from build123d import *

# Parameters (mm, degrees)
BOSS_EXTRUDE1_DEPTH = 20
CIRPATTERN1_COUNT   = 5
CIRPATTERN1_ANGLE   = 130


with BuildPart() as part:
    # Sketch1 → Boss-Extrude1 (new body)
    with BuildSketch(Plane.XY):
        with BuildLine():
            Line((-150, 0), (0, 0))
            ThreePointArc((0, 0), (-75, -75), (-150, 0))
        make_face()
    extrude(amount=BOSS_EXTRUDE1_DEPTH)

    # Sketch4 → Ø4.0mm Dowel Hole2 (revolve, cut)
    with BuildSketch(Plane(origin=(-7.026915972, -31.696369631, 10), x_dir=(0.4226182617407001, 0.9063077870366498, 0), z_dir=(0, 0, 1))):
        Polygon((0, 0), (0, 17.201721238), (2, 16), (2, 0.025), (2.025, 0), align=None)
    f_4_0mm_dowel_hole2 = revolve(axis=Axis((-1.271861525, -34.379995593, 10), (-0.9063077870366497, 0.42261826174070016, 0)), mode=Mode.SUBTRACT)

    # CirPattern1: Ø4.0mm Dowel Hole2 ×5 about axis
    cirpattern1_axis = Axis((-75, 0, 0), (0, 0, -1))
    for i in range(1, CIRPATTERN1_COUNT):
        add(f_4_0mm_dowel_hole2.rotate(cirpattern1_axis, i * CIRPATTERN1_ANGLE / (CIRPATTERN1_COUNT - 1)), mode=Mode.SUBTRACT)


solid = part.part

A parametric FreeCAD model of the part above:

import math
import FreeCAD as App
import Part
import Sketcher
from FreeCAD import Vector
Q = App.Units.Quantity


def add_polygon(sketch, points):
    """Adds a closed chain of lines whose ends are joined by coincident constraints."""
    first, n = sketch.GeometryCount, len(points)
    for a, b in zip(points, points[1:] + points[:1]):
        sketch.addGeometry(Part.LineSegment(App.Vector(*a, 0), App.Vector(*b, 0)), False)
    for i in range(n):
        sketch.addConstraint(Sketcher.Constraint("Coincident", first + i, 2, first + (i + 1) % n, 1))

doc = App.newDocument("Part")
params = doc.addObject("Spreadsheet::Sheet", "Params")
for row, (alias, value) in enumerate([
    ("sketch1_radius", "75 mm"),
    ("pad1_length", "20 mm"),
    ("groove_angle", "360 deg"),
], start=1):
    params.set(f"A{row}", alias)
    params.set(f"B{row}", "=" + value)
    params.setAlias(f"B{row}", alias)

body = doc.addObject("PartDesign::Body", "Body")

# Sketch on XY plane
sketch1 = body.newObject("Sketcher::SketchObject", "Sketch")
sketch1.AttachmentSupport = (doc.getObject("XY_Plane"), [""])
sketch1.MapMode = "FlatFace"
sketch1.addGeometry(Part.LineSegment(Vector(0, 0, 0), Vector(-150, 0, 0)), False)
sketch1.addGeometry(Part.ArcOfCircle(Part.Circle(Vector(-75, 0, 0), Vector(0, 0, 1), 75), math.radians(180), math.radians(360)), False)
sketch1.addConstraint(Sketcher.Constraint("Coincident", 0, 1, 1, 2))
sketch1.addConstraint(Sketcher.Constraint("Coincident", 1, 1, 0, 2))
sketch1.addConstraint(Sketcher.Constraint("Horizontal", 0))
sketch1.addConstraint(Sketcher.Constraint("Coincident", 0, 1, -1, 1))
sketch1.addConstraint(Sketcher.Constraint("PointOnObject", 1, 3, -1))
sketch1.addConstraint(Sketcher.Constraint("Radius", 1, Q("75 mm")))
sketch1.setExpression("Constraints[5]", "Params.sketch1_radius")
pad1 = body.newObject("PartDesign::Pad", "Pad")
pad1.Profile = sketch1
pad1.setExpression("Length", "Params.pad1_length")

# Sketch on XY plane
sketch2 = body.newObject("Sketcher::SketchObject", "Sketch001")
sketch2.AttachmentSupport = (doc.getObject("XY_Plane"), [""])
sketch2.MapMode = "FlatFace"
sketch2.AttachmentOffset = App.Placement(Vector(0, 0, 10), App.Rotation())
add_polygon(sketch2, [(-22.617, -24.427), (-7.027, -31.696), (-6.171, -29.861), (-6.204, -29.873), (-20.683, -23.122)])  # lines 0-4
sketch2.addGeometry(Part.LineSegment(Vector(-7.027, -31.696, 0), Vector(-22.617, -24.427, 0)), True)  # axis
sketch2.addConstraint(Sketcher.Constraint("Coincident", 5, 1, 0, 2))
sketch2.addConstraint(Sketcher.Constraint("Coincident", 5, 2, 4, 2))
sketch2.addConstraint(Sketcher.Constraint("Perpendicular", 0, 1))
sketch2.addConstraint(Sketcher.Constraint("Perpendicular", 1, 3))
sketch2.addConstraint(Sketcher.Constraint("Angle", 0, Q("-25 deg")))
sketch2.addConstraint(Sketcher.Constraint("Angle", 2, Q("-160.000001 deg")))
sketch2.addConstraint(Sketcher.Constraint("Angle", 4, Q("-146 deg")))
sketch2.addConstraint(Sketcher.Constraint("Distance", 1, Q("2.025 mm")))
sketch2.addConstraint(Sketcher.Constraint("Distance", 3, Q("15.975 mm")))
sketch2.addConstraint(Sketcher.Constraint("Distance", 0, Q("17.201721 mm")))
sketch2.addConstraint(Sketcher.Constraint("DistanceY", 0, 2, -1, 1, Q("31.69637 mm")))
sketch2.addConstraint(Sketcher.Constraint("DistanceX", 4, 2, -1, 1, Q("22.61697 mm")))
groove = body.newObject("PartDesign::Groove", "Groove")
groove.Profile = sketch2
groove.ReferenceAxis = (sketch2, ["Axis0"])
groove.setExpression("Angle", "Params.groove_angle")
doc.recompute()

datumline = body.newObject("PartDesign::Line", "DatumLine")
datumline.Placement = App.Placement(Vector(-75, 0, 0), App.Rotation(Vector(0, 0, 1), Vector(0, 0, -1)))
polarpattern = body.newObject("PartDesign::PolarPattern", "PolarPattern")
polarpattern.Originals = [groove]
polarpattern.Axis = (datumline, [""])
polarpattern.Angle = 130
polarpattern.Occurrences = 5
body.Tip = polarpattern

doc.recompute()
